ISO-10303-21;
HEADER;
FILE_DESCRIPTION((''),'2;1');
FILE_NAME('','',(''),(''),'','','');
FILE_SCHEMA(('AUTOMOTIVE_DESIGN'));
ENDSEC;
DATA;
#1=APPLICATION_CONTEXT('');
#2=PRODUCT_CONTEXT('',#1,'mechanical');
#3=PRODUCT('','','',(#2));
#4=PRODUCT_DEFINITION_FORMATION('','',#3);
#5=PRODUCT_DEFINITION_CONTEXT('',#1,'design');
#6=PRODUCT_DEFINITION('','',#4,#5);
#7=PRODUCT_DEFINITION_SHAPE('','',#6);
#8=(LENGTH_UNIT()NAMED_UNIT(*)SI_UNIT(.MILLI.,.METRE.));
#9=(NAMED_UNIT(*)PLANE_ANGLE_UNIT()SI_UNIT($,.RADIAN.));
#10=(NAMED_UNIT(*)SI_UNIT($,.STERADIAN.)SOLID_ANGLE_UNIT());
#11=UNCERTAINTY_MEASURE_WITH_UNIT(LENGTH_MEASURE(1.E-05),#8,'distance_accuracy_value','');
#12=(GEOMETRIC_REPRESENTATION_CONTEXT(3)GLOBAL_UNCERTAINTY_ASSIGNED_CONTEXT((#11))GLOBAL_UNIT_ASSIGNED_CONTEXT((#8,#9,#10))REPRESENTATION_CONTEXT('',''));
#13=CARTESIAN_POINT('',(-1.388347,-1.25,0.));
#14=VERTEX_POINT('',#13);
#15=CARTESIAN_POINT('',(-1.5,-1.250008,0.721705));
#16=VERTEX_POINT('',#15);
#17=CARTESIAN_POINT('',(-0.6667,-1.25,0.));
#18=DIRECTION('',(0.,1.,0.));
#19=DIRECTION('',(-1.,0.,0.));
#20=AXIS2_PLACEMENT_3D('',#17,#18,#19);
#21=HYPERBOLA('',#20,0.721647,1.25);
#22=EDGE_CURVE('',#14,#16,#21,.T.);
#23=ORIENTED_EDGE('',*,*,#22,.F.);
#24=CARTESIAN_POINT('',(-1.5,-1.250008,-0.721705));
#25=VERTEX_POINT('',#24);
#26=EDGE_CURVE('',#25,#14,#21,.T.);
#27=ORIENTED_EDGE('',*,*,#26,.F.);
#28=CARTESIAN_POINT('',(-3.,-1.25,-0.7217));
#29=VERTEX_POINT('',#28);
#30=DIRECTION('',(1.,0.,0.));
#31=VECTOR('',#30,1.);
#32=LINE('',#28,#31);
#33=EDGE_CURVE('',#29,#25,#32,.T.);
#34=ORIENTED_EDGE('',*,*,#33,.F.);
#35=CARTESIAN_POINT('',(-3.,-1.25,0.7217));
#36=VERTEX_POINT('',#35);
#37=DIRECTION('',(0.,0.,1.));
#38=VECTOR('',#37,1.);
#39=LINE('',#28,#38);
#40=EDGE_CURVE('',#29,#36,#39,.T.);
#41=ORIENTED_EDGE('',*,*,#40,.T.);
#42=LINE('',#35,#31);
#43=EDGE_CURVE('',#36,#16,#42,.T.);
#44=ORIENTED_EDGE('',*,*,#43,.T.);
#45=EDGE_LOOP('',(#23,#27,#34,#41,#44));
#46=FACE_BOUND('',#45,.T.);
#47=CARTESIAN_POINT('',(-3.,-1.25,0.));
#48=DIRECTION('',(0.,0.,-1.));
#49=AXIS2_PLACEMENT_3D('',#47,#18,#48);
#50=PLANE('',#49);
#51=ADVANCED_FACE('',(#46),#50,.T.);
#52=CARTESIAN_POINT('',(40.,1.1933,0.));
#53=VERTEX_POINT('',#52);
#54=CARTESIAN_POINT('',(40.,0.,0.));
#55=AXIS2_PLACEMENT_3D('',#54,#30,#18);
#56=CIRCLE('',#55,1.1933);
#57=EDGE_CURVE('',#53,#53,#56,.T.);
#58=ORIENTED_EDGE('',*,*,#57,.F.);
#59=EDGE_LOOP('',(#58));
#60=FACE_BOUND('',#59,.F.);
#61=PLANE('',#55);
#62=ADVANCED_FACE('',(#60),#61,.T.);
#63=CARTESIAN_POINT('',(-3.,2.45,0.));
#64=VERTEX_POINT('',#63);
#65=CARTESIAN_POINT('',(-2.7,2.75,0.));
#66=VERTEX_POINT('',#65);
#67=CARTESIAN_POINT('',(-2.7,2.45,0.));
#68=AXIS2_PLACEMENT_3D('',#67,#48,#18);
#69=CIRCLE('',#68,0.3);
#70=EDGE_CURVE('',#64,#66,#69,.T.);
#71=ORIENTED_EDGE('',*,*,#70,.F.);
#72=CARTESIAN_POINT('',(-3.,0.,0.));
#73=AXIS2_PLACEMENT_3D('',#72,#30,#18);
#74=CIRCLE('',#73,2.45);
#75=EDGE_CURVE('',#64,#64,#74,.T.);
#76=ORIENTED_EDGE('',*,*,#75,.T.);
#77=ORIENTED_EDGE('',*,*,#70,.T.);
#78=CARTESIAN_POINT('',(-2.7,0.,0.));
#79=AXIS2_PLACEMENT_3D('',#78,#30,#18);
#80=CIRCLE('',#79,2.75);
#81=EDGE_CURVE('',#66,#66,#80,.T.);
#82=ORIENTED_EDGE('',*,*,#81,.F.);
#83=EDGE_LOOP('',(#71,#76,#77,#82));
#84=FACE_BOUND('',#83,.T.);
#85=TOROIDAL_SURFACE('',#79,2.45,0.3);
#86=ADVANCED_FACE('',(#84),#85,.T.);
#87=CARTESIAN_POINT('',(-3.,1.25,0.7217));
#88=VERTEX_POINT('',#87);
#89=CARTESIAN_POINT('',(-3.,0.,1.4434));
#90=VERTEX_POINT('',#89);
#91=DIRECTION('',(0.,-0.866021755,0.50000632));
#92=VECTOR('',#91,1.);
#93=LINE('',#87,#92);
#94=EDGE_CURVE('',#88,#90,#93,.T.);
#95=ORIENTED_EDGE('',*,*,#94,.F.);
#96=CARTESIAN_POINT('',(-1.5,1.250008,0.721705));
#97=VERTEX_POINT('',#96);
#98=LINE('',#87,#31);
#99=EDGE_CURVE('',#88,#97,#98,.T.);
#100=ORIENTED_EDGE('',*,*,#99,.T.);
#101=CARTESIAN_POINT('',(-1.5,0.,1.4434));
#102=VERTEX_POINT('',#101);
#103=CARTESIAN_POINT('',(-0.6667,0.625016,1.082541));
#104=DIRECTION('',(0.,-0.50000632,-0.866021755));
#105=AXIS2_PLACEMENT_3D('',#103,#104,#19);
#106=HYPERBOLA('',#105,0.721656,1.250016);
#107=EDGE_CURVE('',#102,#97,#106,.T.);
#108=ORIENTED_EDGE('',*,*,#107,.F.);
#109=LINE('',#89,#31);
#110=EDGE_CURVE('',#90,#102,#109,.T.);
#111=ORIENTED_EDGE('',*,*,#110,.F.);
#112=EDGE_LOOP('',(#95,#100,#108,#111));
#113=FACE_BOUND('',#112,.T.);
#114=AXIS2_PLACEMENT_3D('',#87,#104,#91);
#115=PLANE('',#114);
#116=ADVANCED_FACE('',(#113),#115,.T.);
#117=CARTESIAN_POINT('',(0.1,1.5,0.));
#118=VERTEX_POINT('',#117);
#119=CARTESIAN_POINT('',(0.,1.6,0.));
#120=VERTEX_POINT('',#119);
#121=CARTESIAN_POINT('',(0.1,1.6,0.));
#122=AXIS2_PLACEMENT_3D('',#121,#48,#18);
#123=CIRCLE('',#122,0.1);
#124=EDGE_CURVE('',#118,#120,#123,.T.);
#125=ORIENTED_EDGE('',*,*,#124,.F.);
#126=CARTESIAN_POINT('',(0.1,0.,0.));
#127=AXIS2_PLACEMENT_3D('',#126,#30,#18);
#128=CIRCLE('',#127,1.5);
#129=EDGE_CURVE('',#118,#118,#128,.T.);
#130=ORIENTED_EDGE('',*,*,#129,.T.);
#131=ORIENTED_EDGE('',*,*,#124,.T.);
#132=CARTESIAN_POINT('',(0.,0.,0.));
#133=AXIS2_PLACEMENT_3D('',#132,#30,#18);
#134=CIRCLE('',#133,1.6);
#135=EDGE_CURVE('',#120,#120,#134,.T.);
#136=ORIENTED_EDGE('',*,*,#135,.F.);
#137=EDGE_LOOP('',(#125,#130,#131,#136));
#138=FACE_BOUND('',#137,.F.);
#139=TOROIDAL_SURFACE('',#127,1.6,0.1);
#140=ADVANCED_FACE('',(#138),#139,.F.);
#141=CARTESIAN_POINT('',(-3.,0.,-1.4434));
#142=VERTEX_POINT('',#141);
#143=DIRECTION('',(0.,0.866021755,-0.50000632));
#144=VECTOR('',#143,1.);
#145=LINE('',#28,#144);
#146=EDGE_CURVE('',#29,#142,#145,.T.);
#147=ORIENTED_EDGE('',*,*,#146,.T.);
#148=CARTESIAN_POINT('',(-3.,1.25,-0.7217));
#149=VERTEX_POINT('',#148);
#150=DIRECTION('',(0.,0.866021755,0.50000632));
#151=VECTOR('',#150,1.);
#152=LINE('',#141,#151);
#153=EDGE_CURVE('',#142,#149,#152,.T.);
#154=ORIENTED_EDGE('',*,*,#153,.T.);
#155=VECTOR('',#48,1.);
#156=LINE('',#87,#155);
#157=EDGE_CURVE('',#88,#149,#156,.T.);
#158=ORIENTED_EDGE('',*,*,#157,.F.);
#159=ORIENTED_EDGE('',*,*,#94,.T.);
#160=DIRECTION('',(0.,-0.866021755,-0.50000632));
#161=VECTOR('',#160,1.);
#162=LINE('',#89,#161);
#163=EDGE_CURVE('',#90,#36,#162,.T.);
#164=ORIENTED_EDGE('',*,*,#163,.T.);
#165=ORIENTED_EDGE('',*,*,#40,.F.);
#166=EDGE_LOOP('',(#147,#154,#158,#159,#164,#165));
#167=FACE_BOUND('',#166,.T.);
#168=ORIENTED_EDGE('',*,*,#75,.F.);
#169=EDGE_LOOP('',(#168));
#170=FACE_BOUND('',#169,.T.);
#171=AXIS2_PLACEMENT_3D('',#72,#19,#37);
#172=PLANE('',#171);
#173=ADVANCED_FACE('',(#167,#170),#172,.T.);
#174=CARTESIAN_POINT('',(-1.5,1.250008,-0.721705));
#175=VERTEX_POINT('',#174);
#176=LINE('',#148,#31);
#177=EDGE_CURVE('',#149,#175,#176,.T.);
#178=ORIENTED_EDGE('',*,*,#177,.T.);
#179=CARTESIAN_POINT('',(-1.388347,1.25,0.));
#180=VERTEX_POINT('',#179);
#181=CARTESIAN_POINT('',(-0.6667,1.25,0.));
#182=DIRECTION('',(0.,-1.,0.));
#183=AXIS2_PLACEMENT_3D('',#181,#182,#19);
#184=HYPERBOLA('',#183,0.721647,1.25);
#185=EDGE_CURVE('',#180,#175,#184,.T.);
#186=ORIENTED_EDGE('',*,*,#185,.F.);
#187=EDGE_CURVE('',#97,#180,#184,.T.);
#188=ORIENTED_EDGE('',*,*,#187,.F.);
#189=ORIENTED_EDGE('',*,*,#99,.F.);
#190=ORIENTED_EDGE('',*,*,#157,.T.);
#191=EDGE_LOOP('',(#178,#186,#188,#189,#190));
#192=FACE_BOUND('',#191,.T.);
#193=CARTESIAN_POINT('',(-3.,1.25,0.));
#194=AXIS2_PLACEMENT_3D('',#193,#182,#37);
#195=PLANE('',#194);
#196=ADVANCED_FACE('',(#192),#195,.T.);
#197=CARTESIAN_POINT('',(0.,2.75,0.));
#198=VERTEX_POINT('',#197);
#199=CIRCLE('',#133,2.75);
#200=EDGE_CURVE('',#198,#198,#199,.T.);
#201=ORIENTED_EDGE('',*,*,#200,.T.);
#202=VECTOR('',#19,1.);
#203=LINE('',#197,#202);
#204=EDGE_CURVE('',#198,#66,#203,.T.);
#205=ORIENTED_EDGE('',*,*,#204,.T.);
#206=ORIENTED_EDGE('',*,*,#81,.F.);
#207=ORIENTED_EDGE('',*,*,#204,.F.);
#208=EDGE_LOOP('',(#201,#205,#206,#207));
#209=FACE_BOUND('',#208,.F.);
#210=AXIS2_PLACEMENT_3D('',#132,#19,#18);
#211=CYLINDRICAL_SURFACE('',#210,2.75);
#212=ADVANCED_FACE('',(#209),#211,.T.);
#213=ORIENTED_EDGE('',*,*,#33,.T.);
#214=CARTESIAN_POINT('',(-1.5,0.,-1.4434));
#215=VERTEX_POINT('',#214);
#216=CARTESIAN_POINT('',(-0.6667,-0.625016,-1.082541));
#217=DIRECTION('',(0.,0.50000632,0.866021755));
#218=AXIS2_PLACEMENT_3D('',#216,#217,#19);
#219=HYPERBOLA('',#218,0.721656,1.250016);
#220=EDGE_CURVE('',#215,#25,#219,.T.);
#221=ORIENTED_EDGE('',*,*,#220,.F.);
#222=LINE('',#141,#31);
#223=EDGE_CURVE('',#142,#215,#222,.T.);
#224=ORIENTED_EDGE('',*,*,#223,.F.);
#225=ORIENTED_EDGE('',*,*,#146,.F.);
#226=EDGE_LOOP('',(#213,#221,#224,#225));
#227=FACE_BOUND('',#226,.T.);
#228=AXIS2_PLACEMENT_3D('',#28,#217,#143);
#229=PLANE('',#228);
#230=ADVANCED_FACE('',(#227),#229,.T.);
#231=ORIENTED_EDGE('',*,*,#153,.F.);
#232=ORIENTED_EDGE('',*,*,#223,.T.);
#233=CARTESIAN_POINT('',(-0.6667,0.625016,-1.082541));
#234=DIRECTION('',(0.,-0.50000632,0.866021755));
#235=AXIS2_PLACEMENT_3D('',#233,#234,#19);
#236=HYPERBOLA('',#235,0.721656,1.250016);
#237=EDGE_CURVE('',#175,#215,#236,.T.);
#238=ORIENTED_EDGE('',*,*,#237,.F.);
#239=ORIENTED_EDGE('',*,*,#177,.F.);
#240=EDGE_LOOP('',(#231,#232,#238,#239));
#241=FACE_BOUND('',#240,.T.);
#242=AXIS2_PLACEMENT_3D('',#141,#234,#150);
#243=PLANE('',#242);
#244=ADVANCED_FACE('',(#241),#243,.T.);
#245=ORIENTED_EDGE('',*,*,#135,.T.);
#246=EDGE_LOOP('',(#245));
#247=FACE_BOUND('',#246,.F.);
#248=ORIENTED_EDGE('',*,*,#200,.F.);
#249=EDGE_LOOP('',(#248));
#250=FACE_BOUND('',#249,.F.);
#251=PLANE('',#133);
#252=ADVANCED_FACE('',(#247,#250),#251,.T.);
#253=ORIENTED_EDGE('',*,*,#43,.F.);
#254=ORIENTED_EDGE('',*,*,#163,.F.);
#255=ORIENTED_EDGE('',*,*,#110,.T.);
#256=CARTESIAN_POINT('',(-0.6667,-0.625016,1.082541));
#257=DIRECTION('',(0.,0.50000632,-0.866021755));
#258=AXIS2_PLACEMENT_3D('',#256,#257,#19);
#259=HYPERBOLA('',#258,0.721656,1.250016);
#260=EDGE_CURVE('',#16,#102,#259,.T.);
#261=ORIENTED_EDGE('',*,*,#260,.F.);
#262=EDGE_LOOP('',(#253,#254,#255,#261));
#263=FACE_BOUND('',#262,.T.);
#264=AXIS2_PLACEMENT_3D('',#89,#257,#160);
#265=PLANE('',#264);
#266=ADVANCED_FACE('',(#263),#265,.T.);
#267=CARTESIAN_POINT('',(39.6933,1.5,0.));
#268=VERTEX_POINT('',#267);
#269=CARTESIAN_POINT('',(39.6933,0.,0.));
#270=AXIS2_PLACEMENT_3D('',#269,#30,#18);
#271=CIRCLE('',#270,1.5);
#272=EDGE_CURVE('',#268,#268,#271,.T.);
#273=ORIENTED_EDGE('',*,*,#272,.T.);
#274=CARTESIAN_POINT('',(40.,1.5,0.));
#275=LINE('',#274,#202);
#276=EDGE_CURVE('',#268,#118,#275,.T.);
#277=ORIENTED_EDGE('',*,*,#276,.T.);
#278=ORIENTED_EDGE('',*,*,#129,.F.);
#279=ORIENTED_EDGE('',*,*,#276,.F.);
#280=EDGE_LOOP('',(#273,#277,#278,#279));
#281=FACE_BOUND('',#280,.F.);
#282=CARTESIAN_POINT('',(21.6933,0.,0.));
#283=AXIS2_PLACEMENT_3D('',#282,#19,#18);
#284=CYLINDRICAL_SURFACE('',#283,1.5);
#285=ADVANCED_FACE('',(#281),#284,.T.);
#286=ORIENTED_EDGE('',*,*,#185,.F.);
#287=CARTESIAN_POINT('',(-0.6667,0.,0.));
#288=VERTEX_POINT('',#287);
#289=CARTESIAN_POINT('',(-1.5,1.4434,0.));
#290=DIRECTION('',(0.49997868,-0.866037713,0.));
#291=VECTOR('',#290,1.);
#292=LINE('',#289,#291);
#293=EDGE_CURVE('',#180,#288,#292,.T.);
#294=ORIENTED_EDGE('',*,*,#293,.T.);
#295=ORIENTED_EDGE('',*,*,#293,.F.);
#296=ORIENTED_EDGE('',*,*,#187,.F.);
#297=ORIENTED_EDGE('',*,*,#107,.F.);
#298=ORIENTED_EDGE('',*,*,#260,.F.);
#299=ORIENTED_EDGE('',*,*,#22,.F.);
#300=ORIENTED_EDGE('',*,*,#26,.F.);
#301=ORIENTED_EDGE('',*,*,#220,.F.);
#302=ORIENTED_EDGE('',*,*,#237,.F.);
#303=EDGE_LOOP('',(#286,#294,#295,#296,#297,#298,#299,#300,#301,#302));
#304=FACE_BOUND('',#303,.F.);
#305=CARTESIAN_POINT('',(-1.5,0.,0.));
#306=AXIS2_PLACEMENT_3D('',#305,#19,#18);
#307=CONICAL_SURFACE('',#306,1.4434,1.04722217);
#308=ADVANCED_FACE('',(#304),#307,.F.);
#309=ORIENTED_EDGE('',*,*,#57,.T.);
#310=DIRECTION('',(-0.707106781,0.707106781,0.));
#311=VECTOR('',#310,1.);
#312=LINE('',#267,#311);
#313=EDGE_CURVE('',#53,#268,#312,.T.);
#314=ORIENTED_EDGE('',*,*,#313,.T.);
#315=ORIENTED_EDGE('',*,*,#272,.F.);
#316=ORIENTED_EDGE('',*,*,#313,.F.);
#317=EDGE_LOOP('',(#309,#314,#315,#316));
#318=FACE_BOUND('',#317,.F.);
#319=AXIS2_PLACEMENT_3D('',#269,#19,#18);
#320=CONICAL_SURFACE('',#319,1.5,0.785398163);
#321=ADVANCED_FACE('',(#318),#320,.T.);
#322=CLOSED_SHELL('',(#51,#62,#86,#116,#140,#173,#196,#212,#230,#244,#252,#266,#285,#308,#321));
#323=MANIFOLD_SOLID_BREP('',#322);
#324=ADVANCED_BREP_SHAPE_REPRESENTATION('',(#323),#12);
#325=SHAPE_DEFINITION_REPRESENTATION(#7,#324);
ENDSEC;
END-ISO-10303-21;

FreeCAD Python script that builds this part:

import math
import FreeCAD as App
import Part
import Sketcher

V = App.Vector
Q = App.Units.Quantity


def edges_at(feature, points):
    """Names of the edges that pass closest to the given points."""
    edges = feature.Shape.Edges
    near = lambda p: min(range(len(edges)), key=lambda i: edges[i].distToShape(Part.Vertex(*p))[0])
    return sorted({f"Edge{near(p) + 1}" for p in points})


def add_polygon(sketch, points):
    """Adds a closed chain of lines whose ends are joined by coincident constraints."""
    first, n = sketch.GeometryCount, len(points)
    for a, b in zip(points, points[1:] + points[:1]):
        sketch.addGeometry(Part.LineSegment(App.Vector(*a, 0), App.Vector(*b, 0)), False)
    for i in range(n):
        sketch.addConstraint(Sketcher.Constraint("Coincident", first + i, 2, first + (i + 1) % n, 1))

doc = App.newDocument("Part")
params = doc.addObject("Spreadsheet::Sheet", "Params")
for row, (alias, value) in enumerate([
    ("sketch1_width", "40 mm"),
    ("sketch1_width2", "3 mm"),
    ("sketch1_width3", "1.5 mm"),
    ("sketch1_height", "1.25 mm"),
    ("revolution_angle", "360 deg"),
    ("fillet_radius", "0.3 mm"),
    ("chamfer_size", "0.3067 mm"),
    ("chamfer_size2", "0.3067 mm"),
    ("fillet2_radius", "0.1 mm"),
], start=1):
    params.set(f"A{row}", alias)
    params.set(f"B{row}", "=" + value)
    params.setAlias(f"B{row}", alias)

body = doc.addObject("PartDesign::Body", "Body")

# Sketch on XY plane
sketch1 = body.newObject("Sketcher::SketchObject", "Sketch")
sketch1.AttachmentSupport = (doc.getObject("XY_Plane"), [""])
sketch1.MapMode = "FlatFace"
add_polygon(sketch1, [(-1.5, 1.4), (-0.7, 0), (40, 0), (40, 1.5), (0, 1.5), (0, 2.8), (-3, 2.8), (-3, 1.4)])  # lines 0-7
sketch1.addConstraint([
    Sketcher.Constraint("Horizontal", 1),
    Sketcher.Constraint("Vertical", 2),
    Sketcher.Constraint("Horizontal", 3),
    Sketcher.Constraint("Vertical", 4),
    Sketcher.Constraint("Horizontal", 5),
    Sketcher.Constraint("Vertical", 6),
    Sketcher.Constraint("Horizontal", 7),
    Sketcher.Constraint("PointOnObject", 0, 2, -1),
    Sketcher.Constraint("PointOnObject", 3, 2, -2),
    Sketcher.Constraint("Equal", 7, 2),
    Sketcher.Constraint("DistanceX", 3, 2, 3, 1, Q("40 mm")),
    Sketcher.Constraint("DistanceX", 5, 2, 5, 1, Q("3 mm")),
    Sketcher.Constraint("DistanceX", 7, 1, 7, 2, Q("1.5 mm")),
    Sketcher.Constraint("DistanceY", 4, 1, 4, 2, Q("1.25 mm")),
    Sketcher.Constraint("DistanceX", 1, 1, 1, 2, Q("40.6667 mm")),
    Sketcher.Constraint("DistanceY", 6, 2, 6, 1, Q("1.3066 mm")),
])
sketch1.setExpression("Constraints[18]", "Params.sketch1_width")
sketch1.setExpression("Constraints[19]", "Params.sketch1_width2")
sketch1.setExpression("Constraints[20]", "Params.sketch1_width3")
sketch1.setExpression("Constraints[21]", "Params.sketch1_height")
revolution = body.newObject("PartDesign::Revolution", "Revolution")
revolution.Profile = sketch1
revolution.ReferenceAxis = (sketch1, ["H_Axis"])
revolution.setExpression("Angle", "Params.revolution_angle")

# Sketch on YZ plane
sketch2 = body.newObject("Sketcher::SketchObject", "Sketch001")
sketch2.AttachmentSupport = (doc.getObject("YZ_Plane"), [""])
sketch2.MapMode = "FlatFace"
sketch2.AttachmentOffset = App.Placement(V(0, 0, -3), App.Rotation())
sketch2.addGeometry([
    Part.LineSegment(V(1.2, 0.7, 0), V(0, 1.4, 0)),  # 0
    Part.ArcOfCircle(Part.Circle(V(0, 0, 0), V(0, 0, 1), 1.4), math.radians(30), math.radians(90)),  # 1
    Part.ArcOfCircle(Part.Circle(V(0, 0, 0), V(0, 0, 1), 1.4), math.radians(90), math.radians(150)),  # 2
    Part.LineSegment(V(0, 1.4, 0), V(-1.2, 0.7, 0)),  # 3
    Part.ArcOfCircle(Part.Circle(V(0, 0, 0), V(0, 0, 1), 1.4), math.radians(-30), math.radians(30)),  # 4
    Part.LineSegment(V(1.2, 0.7, 0), V(1.2, -0.7, 0)),  # 5
    Part.LineSegment(V(-1.2, 0.7, 0), V(-1.2, -0.7, 0)),  # 6
    Part.ArcOfCircle(Part.Circle(V(0, 0, 0), V(0, 0, 1), 1.4), math.radians(150), math.radians(210)),  # 7
    Part.LineSegment(V(-1.2, -0.7, 0), V(0, -1.4, 0)),  # 8
    Part.ArcOfCircle(Part.Circle(V(0, 0, 0), V(0, 0, 1), 1.4), math.radians(-150), math.radians(-90)),  # 9
    Part.ArcOfCircle(Part.Circle(V(0, 0, 0), V(0, 0, 1), 1.4), math.radians(-90), math.radians(-30)),  # 10
    Part.LineSegment(V(0, -1.4, 0), V(1.2, -0.7, 0)),  # 11
], False)
sketch2.addConstraint([
    Sketcher.Constraint("Coincident", 0, 1, 1, 1),
    Sketcher.Constraint("Coincident", 1, 2, 0, 2),
    Sketcher.Constraint("Coincident", 2, 1, 3, 1),
    Sketcher.Constraint("Coincident", 3, 2, 2, 2),
    Sketcher.Constraint("Coincident", 4, 1, 5, 2),
    Sketcher.Constraint("Coincident", 5, 1, 4, 2),
    Sketcher.Constraint("Coincident", 6, 1, 7, 1),
    Sketcher.Constraint("Coincident", 7, 2, 6, 2),
    Sketcher.Constraint("Coincident", 8, 1, 9, 1),
    Sketcher.Constraint("Coincident", 9, 2, 8, 2),
    Sketcher.Constraint("Coincident", 10, 1, 11, 1),
    Sketcher.Constraint("Coincident", 11, 2, 10, 2),
    Sketcher.Constraint("Vertical", 5),
    Sketcher.Constraint("Vertical", 6),
    Sketcher.Constraint("Coincident", 1, 3, -1, 1),
    Sketcher.Constraint("Coincident", 2, 3, -1, 1),
    Sketcher.Constraint("Coincident", 4, 3, -1, 1),
    Sketcher.Constraint("Coincident", 7, 3, -1, 1),
    Sketcher.Constraint("Coincident", 9, 3, -1, 1),
    Sketcher.Constraint("Coincident", 10, 3, -1, 1),
    Sketcher.Constraint("Coincident", 2, 1, 1, 2),
    Sketcher.Constraint("Coincident", 5, 1, 0, 1),
    Sketcher.Constraint("Coincident", 6, 1, 3, 2),
    Sketcher.Constraint("Coincident", 8, 1, 7, 2),
    Sketcher.Constraint("Coincident", 10, 1, 9, 2),
    Sketcher.Constraint("PointOnObject", 1, 2, -2),
    Sketcher.Constraint("PointOnObject", 9, 2, -2),
    Sketcher.Constraint("Parallel", 0, 8),
    Sketcher.Constraint("Parallel", 3, 11),
    Sketcher.Constraint("Angle", 0, Q("149.9996 deg")),
    Sketcher.Constraint("Radius", 1, Q("1.4434 mm")),
])
pad1 = body.newObject("PartDesign::Pad", "Pad")
pad1.Profile = sketch2
pad1.Type = "UpToFirst"
doc.recompute()

fillet = body.newObject("PartDesign::Fillet", "Fillet")
fillet.Base = (pad1, edges_at(pad1, [(-3, -2.75, 0)]))
fillet.setExpression("Radius", "Params.fillet_radius")
doc.recompute()

chamfer = body.newObject("PartDesign::Chamfer", "Chamfer")
chamfer.Base = (fillet, edges_at(fillet, [(40, -1.5, 0)]))
chamfer.ChamferType = "Two distances"
chamfer.setExpression("Size", "Params.chamfer_size")
chamfer.setExpression("Size2", "Params.chamfer_size2")
doc.recompute()

fillet2 = body.newObject("PartDesign::Fillet", "Fillet001")
fillet2.Base = (chamfer, edges_at(chamfer, [(0, -1.5, 0)]))
fillet2.setExpression("Radius", "Params.fillet2_radius")

doc.recompute()
